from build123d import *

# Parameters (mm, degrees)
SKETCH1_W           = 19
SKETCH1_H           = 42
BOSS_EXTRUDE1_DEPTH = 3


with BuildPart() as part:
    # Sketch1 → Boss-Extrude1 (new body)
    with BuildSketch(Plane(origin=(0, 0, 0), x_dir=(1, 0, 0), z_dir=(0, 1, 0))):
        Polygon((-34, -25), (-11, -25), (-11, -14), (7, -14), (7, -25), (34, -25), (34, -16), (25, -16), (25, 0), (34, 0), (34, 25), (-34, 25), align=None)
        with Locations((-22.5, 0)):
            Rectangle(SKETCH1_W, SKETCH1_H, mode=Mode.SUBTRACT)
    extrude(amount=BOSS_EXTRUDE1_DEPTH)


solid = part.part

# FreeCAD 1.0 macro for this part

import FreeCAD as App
import Part
import Sketcher

V = App.Vector
Q = App.Units.Quantity


def add_polygon(sketch, points):
    """Adds a closed chain of lines whose ends are joined by coincident constraints."""
    first, n = sketch.GeometryCount, len(points)
    for a, b in zip(points, points[1:] + points[:1]):
        sketch.addGeometry(Part.LineSegment(App.Vector(*a, 0), App.Vector(*b, 0)), False)
    for i in range(n):
        sketch.addConstraint(Sketcher.Constraint("Coincident", first + i, 2, first + (i + 1) % n, 1))

doc = App.newDocument("Part")
body = doc.addObject("PartDesign::Body", "Body")

sketch1 = doc.addObject("Sketcher::SketchObject", "Sketch")
body.addObject(sketch1)
sketch1.AttachmentSupport = (doc.XZ_Plane, [""])
sketch1.MapMode = "FlatFace"
add_polygon(sketch1, [(-34, 25), (-11, 25), (-11, 14), (7, 14), (7, 25), (34, 25), (34, 16), (25, 16), (25, 0), (34, 0), (34, -25), (-34, -25)])
add_polygon(sketch1, [(-13, 21), (-32, 21), (-32, -21), (-13, -21)])
sketch1.addConstraint([
    Sketcher.Constraint("Horizontal", 0),
    Sketcher.Constraint("Vertical", 1),
    Sketcher.Constraint("Horizontal", 2),
    Sketcher.Constraint("Vertical", 3),
    Sketcher.Constraint("Horizontal", 4),
    Sketcher.Constraint("Vertical", 5),
    Sketcher.Constraint("Horizontal", 6),
    Sketcher.Constraint("Vertical", 7),
    Sketcher.Constraint("Horizontal", 8),
    Sketcher.Constraint("Vertical", 9),
    Sketcher.Constraint("Horizontal", 10),
    Sketcher.Constraint("Vertical", 11),
    Sketcher.Constraint("Horizontal", 12),
    Sketcher.Constraint("Vertical", 13),
    Sketcher.Constraint("Horizontal", 14),
    Sketcher.Constraint("Vertical", 15),
    Sketcher.Constraint("Symmetric", 4, 2, 10, 2, -1, 1),
    Sketcher.Constraint("Symmetric", 9, 2, 11, 2, -1, 1),
    Sketcher.Constraint("PointOnObject", 7, 2, -1),
    Sketcher.Constraint("Equal", 8, 5),
    Sketcher.Constraint("DistanceX", 0, 1, 0, 2, Q("23 mm")),
    Sketcher.Constraint("DistanceX", 2, 1, 2, 2, Q("18 mm")),
    Sketcher.Constraint("DistanceX", 4, 1, 4, 2, Q("27 mm")),
    Sketcher.Constraint("DistanceX", 6, 2, 6, 1, Q("9 mm")),
    Sketcher.Constraint("DistanceX", 12, 2, 12, 1, Q("19 mm")),
    Sketcher.Constraint("DistanceY", 1, 2, 1, 1, Q("11 mm")),
    Sketcher.Constraint("DistanceY", 7, 2, 7, 1, Q("16 mm")),
    Sketcher.Constraint("DistanceY", 13, 2, 13, 1, Q("42 mm")),
    Sketcher.Constraint("DistanceX", 12, 2, -1, 1, Q("32 mm")),
    Sketcher.Constraint("DistanceY", -1, 1, 12, 2, Q("21 mm")),
])
pad1 = doc.addObject("PartDesign::Pad", "Pad")
body.addObject(pad1)
pad1.Profile = sketch1
pad1.Length = 3
pad1.Reversed = True

doc.recompute()
